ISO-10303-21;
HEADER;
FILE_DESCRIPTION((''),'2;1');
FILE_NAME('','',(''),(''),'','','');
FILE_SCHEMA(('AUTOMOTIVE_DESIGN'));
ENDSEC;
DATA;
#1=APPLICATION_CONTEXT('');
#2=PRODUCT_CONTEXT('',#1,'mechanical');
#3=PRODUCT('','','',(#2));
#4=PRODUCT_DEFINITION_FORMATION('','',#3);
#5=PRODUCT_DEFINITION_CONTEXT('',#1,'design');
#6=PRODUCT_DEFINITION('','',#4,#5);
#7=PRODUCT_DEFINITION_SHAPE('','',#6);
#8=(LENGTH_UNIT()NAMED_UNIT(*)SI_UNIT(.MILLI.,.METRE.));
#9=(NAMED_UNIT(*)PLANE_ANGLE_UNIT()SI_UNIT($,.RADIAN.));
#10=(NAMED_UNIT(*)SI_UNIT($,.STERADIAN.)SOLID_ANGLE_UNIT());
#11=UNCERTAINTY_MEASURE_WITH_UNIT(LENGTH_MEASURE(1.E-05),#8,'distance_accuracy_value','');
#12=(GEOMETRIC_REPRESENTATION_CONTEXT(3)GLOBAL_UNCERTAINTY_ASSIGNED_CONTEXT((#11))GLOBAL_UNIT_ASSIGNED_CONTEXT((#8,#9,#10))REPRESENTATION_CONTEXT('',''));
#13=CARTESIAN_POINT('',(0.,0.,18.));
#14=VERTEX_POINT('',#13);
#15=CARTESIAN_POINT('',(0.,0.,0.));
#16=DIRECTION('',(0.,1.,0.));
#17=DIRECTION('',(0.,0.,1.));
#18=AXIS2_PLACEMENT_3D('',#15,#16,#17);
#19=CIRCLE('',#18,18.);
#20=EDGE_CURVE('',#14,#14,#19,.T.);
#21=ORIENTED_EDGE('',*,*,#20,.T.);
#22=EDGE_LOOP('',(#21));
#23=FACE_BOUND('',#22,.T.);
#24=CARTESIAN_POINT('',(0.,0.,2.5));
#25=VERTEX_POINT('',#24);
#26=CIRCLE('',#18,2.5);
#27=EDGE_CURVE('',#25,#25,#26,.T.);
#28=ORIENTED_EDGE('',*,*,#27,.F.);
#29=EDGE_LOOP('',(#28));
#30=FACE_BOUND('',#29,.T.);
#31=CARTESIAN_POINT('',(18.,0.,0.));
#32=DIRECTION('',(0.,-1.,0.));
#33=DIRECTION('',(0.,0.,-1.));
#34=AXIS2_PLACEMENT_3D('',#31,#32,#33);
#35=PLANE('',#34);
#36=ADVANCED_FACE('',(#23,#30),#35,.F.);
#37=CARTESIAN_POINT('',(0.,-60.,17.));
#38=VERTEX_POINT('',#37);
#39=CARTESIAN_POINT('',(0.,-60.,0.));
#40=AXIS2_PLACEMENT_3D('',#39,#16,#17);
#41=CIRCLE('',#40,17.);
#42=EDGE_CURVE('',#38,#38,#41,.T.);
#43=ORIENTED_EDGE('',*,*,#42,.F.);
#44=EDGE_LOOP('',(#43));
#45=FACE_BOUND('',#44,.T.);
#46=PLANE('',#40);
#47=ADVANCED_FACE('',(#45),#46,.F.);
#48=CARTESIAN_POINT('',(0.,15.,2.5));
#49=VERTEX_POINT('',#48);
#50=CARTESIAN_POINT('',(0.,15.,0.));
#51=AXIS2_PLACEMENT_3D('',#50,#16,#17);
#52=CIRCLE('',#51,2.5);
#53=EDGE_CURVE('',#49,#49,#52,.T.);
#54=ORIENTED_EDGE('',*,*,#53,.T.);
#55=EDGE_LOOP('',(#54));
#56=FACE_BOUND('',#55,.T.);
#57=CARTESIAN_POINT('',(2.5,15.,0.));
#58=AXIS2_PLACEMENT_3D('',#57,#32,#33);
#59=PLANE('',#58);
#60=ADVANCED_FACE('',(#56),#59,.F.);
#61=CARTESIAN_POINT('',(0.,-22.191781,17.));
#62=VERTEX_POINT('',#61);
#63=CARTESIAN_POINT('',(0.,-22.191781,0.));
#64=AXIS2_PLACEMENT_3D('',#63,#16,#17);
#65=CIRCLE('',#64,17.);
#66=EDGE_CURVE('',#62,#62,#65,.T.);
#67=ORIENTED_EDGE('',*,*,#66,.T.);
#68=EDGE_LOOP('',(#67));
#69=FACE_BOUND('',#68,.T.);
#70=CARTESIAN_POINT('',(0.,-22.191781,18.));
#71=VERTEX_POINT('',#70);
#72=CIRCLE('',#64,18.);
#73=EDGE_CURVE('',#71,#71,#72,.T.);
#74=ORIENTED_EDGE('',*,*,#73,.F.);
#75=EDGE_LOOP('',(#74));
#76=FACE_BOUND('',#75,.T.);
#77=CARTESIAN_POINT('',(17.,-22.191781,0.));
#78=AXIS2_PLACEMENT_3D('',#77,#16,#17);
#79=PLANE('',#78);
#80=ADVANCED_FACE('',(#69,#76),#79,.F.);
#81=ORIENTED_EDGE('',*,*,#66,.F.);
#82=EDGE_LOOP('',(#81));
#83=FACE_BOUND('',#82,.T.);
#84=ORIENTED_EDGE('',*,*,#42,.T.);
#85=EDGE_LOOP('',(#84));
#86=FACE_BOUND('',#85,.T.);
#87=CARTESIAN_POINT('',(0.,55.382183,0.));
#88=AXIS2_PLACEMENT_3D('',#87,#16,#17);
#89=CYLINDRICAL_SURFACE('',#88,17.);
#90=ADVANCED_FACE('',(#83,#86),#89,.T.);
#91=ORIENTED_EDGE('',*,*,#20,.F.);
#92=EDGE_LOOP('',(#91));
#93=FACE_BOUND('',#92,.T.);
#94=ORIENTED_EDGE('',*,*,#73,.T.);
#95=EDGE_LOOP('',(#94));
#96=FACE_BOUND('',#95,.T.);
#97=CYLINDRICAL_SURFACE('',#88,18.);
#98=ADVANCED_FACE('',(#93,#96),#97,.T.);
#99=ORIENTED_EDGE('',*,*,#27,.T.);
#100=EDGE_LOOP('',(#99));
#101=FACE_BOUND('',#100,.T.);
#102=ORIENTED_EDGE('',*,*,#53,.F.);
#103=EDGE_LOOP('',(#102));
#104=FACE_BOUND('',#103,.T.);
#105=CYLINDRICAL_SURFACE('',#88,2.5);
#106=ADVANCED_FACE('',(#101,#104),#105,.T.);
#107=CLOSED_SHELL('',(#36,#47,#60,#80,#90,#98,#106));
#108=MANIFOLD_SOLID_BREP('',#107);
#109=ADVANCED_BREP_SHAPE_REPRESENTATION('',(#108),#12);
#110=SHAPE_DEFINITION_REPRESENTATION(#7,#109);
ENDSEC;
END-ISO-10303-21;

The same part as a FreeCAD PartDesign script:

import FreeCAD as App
import Part
import Sketcher

doc = App.newDocument("Part")
body = doc.addObject("PartDesign::Body", "Body")

sketch1 = body.newObject("Sketcher::SketchObject", "Sketch")
sketch1.AttachmentSupport = (doc.getObject("XY_Plane"), [""])
sketch1.MapMode = "FlatFace"
sketch1.addGeometry([
    Part.LineSegment(App.Vector(0, -60, 0), App.Vector(17, -60, 0)),
    Part.LineSegment(App.Vector(17, -60, 0), App.Vector(17, -22.2, 0)),
    Part.LineSegment(App.Vector(17, -22.2, 0), App.Vector(18, -22.2, 0)),
    Part.LineSegment(App.Vector(18, -22.2, 0), App.Vector(18, 0, 0)),
    Part.LineSegment(App.Vector(18, 0, 0), App.Vector(2.5, 0, 0)),
    Part.LineSegment(App.Vector(2.5, 0, 0), App.Vector(2.5, 15, 0)),
    Part.LineSegment(App.Vector(2.5, 15, 0), App.Vector(0, 15, 0)),
    Part.LineSegment(App.Vector(0, 15, 0), App.Vector(0, -60, 0)),
], False)
sketch1.addConstraint([
    Sketcher.Constraint("Coincident", 0, 2, 1, 1),
    Sketcher.Constraint("Coincident", 1, 2, 2, 1),
    Sketcher.Constraint("Coincident", 2, 2, 3, 1),
    Sketcher.Constraint("Coincident", 3, 2, 4, 1),
    Sketcher.Constraint("Coincident", 4, 2, 5, 1),
    Sketcher.Constraint("Coincident", 5, 2, 6, 1),
    Sketcher.Constraint("Coincident", 6, 2, 7, 1),
    Sketcher.Constraint("Coincident", 7, 2, 0, 1),
    Sketcher.Constraint("Horizontal", 0),
    Sketcher.Constraint("Vertical", 1),
    Sketcher.Constraint("Horizontal", 2),
    Sketcher.Constraint("Vertical", 3),
    Sketcher.Constraint("Horizontal", 4),
    Sketcher.Constraint("Vertical", 5),
    Sketcher.Constraint("Horizontal", 6),
    Sketcher.Constraint("Vertical", 7),
    Sketcher.Constraint("PointOnObject", 3, 2, -1),
    Sketcher.Constraint("PointOnObject", 6, 2, -2),
    Sketcher.Constraint("DistanceX", 0, 1, 0, 2, 17.0),
    Sketcher.Constraint("DistanceX", 2, 1, 2, 2, 1.0),
    Sketcher.Constraint("DistanceY", 5, 1, 5, 2, 15.0),
    Sketcher.Constraint("DistanceY", 7, 2, 7, 1, 75.0),
    Sketcher.Constraint("DistanceX", 4, 2, 4, 1, 15.5),
    Sketcher.Constraint("DistanceY", 1, 1, 1, 2, 37.808219),
])
revolution = body.newObject("PartDesign::Revolution", "Revolution")
revolution.Profile = sketch1
revolution.ReferenceAxis = (sketch1, ["V_Axis"])
revolution.Angle = 360

doc.recompute()
